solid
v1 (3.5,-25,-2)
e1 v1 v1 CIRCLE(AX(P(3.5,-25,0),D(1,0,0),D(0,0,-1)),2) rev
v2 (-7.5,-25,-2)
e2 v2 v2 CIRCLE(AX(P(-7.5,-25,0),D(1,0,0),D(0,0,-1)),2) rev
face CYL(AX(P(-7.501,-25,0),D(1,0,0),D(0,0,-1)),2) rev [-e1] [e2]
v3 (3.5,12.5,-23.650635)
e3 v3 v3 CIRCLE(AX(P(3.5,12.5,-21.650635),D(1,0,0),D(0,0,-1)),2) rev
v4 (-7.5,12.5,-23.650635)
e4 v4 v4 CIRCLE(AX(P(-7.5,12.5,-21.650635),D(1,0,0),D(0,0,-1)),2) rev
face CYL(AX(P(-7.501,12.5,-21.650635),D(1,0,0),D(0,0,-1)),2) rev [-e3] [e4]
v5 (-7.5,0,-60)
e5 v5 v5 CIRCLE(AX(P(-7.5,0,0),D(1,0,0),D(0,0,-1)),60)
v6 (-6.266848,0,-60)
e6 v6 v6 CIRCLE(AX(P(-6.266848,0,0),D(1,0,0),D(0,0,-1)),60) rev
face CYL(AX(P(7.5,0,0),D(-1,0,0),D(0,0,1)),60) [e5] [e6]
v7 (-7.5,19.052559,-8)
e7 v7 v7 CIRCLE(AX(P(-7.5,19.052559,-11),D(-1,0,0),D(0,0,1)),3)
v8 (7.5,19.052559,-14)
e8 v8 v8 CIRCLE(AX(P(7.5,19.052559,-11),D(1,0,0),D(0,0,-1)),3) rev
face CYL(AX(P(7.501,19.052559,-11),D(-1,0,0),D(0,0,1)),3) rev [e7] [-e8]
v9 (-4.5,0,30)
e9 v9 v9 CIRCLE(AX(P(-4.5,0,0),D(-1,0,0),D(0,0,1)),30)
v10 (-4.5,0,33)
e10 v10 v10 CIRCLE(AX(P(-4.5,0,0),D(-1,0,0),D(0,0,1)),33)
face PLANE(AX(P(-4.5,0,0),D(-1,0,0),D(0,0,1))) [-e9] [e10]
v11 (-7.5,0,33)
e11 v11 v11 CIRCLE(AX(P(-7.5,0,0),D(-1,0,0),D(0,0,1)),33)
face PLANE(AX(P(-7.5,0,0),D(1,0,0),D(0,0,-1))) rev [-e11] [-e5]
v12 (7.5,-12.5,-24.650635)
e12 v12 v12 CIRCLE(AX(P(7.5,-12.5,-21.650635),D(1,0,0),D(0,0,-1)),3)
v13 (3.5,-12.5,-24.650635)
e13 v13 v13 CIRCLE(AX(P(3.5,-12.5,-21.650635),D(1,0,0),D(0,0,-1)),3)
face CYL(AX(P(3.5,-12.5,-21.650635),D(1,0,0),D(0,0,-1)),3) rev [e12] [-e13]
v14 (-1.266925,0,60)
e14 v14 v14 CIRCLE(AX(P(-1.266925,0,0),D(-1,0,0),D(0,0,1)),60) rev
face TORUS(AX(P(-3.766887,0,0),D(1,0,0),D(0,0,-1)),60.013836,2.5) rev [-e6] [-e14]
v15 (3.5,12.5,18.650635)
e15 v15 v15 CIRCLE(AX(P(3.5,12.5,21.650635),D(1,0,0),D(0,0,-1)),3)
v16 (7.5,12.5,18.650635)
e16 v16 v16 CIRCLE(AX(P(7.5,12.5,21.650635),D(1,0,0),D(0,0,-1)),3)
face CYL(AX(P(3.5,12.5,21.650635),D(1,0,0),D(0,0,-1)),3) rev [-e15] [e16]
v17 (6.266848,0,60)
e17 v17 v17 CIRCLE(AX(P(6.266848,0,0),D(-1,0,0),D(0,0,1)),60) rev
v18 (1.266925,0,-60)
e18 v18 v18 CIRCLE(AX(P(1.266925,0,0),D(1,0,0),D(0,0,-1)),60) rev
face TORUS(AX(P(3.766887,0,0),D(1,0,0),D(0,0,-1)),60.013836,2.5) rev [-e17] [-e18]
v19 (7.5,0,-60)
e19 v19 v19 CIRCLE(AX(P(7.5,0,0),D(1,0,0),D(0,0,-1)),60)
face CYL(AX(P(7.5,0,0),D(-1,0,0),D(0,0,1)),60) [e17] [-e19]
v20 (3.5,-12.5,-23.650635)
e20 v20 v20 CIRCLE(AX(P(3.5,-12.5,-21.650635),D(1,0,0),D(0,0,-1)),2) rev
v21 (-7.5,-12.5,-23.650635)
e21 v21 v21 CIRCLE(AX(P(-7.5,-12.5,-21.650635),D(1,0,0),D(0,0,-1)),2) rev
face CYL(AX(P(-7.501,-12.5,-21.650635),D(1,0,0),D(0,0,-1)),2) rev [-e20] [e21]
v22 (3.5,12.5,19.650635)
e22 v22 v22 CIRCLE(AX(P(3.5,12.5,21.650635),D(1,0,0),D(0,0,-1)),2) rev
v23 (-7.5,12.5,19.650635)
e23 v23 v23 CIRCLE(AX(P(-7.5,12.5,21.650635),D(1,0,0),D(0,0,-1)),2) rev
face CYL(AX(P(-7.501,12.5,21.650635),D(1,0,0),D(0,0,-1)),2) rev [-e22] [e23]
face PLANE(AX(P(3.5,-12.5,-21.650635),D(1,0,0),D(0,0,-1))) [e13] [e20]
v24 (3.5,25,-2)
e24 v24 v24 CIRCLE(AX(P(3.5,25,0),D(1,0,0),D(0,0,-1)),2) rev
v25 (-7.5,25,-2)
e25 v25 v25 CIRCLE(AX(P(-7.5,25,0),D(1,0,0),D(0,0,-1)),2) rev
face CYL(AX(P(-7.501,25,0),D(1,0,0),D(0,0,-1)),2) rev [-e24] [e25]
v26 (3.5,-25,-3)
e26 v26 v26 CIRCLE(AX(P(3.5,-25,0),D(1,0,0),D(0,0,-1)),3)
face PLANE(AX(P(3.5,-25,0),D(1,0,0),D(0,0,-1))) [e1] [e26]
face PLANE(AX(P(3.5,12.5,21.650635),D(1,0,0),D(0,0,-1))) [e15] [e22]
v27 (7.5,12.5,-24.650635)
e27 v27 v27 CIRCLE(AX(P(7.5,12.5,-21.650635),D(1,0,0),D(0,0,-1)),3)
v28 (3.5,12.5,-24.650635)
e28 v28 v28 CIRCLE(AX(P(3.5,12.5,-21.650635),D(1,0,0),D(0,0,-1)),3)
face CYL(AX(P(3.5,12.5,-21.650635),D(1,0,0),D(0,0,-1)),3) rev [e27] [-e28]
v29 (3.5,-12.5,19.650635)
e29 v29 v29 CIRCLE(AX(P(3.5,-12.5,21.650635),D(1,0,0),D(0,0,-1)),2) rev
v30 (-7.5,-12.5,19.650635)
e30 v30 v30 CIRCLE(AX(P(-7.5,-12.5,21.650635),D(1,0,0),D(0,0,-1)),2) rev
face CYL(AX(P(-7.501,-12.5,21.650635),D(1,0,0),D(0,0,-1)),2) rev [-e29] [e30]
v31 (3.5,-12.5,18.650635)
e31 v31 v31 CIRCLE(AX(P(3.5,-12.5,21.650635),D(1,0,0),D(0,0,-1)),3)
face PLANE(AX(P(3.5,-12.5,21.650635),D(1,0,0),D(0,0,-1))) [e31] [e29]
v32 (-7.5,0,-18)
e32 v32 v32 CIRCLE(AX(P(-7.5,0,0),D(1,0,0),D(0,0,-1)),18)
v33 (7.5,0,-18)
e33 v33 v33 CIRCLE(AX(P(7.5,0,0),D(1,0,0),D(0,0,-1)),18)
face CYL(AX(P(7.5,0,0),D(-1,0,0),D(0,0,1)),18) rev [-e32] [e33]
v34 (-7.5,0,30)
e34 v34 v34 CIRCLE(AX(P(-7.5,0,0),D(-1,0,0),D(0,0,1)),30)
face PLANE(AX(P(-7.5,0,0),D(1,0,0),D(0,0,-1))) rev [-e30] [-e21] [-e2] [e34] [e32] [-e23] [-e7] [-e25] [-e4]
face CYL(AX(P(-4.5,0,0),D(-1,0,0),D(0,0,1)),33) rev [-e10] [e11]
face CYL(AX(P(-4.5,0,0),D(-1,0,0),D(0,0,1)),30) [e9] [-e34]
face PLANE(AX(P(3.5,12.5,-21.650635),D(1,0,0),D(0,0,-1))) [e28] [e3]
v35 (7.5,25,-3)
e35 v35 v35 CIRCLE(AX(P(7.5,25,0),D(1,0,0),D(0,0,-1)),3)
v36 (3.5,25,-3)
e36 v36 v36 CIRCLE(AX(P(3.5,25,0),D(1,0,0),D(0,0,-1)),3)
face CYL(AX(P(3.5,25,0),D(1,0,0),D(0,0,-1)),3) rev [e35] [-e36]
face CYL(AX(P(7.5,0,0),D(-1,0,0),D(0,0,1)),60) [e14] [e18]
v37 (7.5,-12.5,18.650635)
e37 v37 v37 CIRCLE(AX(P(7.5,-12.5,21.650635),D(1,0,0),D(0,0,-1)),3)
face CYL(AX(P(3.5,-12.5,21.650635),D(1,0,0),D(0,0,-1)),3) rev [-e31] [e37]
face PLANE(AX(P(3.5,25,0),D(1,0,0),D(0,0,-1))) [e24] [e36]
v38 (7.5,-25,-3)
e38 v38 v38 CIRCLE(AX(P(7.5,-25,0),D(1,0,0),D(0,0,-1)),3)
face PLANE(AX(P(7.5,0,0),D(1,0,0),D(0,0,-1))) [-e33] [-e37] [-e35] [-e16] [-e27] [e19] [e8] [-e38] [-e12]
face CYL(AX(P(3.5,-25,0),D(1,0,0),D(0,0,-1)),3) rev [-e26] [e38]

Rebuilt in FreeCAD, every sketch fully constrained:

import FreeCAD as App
import Part
import Sketcher
Q = App.Units.Quantity

doc = App.newDocument("Part")
params = doc.addObject("Spreadsheet::Sheet", "Params")
for row, (alias, value) in enumerate([
    ("sketch1_diameter", "120 mm"),
    ("sketch1_diameter2", "36 mm"),
    ("pad1_length", "15 mm"),
    ("sketch2_diameter", "4 mm"),
    ("sketch3_diameter", "4 mm"),
    ("sketch4_diameter", "4 mm"),
    ("sketch5_diameter", "4 mm"),
    ("sketch6_diameter", "4 mm"),
    ("sketch7_diameter", "4 mm"),
    ("sketch8_diameter", "66 mm"),
    ("sketch8_diameter2", "60 mm"),
    ("pocket7_length", "3 mm"),
    ("sketch9_diameter", "5 mm"),
    ("groove_angle", "360 deg"),
    ("sketch10_diameter", "6 mm"),
    ("pocket8_length", "4 mm"),
    ("sketch11_diameter", "6 mm"),
], start=1):
    params.set(f"A{row}", alias)
    params.set(f"B{row}", "=" + value)
    params.setAlias(f"B{row}", alias)

body = doc.addObject("PartDesign::Body", "Body")

# Sketch on YZ plane
sketch1 = body.newObject("Sketcher::SketchObject", "Sketch")
sketch1.AttachmentSupport = (doc.getObject("YZ_Plane"), [""])
sketch1.MapMode = "FlatFace"
sketch1.addGeometry([
    Part.Circle(App.Vector(0, 0, 0), App.Vector(0, 0, 1), 60),
    Part.Circle(App.Vector(0, 0, 0), App.Vector(0, 0, 1), 18),
], False)
sketch1.addConstraint([
    Sketcher.Constraint("Coincident", 0, 3, -1, 1),
    Sketcher.Constraint("Coincident", 1, 3, -1, 1),
    Sketcher.Constraint("Diameter", 0, Q("120 mm")),
    Sketcher.Constraint("Diameter", 1, Q("36 mm")),
])
sketch1.setExpression("Constraints[2]", "Params.sketch1_diameter")
sketch1.setExpression("Constraints[3]", "Params.sketch1_diameter2")
pad1 = body.newObject("PartDesign::Pad", "Pad")
pad1.Profile = sketch1
pad1.setExpression("Length", "Params.pad1_length")
pad1.Midplane = True

# Sketch on YZ plane
sketch2 = body.newObject("Sketcher::SketchObject", "Sketch001")
sketch2.AttachmentSupport = (doc.getObject("YZ_Plane"), [""])
sketch2.MapMode = "FlatFace"
sketch2.AttachmentOffset = App.Placement(App.Vector(0, 0, 7.5), App.Rotation())
sketch2.addGeometry(Part.Circle(App.Vector(25, 0, 0), App.Vector(0, 0, 1), 2), False)
sketch2.addConstraint([
    Sketcher.Constraint("PointOnObject", 0, 3, -1),
    Sketcher.Constraint("Diameter", 0, Q("4 mm")),
    Sketcher.Constraint("DistanceX", -1, 1, 0, 3, Q("25 mm")),
])
sketch2.setExpression("Constraints[1]", "Params.sketch2_diameter")
pocket1 = body.newObject("PartDesign::Pocket", "Pocket")
pocket1.Profile = sketch2
pocket1.Type = "UpToFirst"

# Sketch on YZ plane
sketch3 = body.newObject("Sketcher::SketchObject", "Sketch002")
sketch3.AttachmentSupport = (doc.getObject("YZ_Plane"), [""])
sketch3.MapMode = "FlatFace"
sketch3.AttachmentOffset = App.Placement(App.Vector(0, 0, 7.5), App.Rotation())
sketch3.addGeometry(Part.Circle(App.Vector(12.5, -21.7, 0), App.Vector(0, 0, 1), 2), False)
sketch3.addConstraint([
    Sketcher.Constraint("Diameter", 0, Q("4 mm")),
    Sketcher.Constraint("DistanceX", -1, 1, 0, 3, Q("12.5 mm")),
    Sketcher.Constraint("DistanceY", 0, 3, -1, 1, Q("21.650635 mm")),
])
sketch3.setExpression("Constraints[0]", "Params.sketch3_diameter")
pocket2 = body.newObject("PartDesign::Pocket", "Pocket001")
pocket2.Profile = sketch3
pocket2.Type = "UpToFirst"

# Sketch on YZ plane
sketch4 = body.newObject("Sketcher::SketchObject", "Sketch003")
sketch4.AttachmentSupport = (doc.getObject("YZ_Plane"), [""])
sketch4.MapMode = "FlatFace"
sketch4.AttachmentOffset = App.Placement(App.Vector(0, 0, 7.5), App.Rotation())
sketch4.addGeometry(Part.Circle(App.Vector(-12.5, -21.7, 0), App.Vector(0, 0, 1), 2), False)
sketch4.addConstraint([
    Sketcher.Constraint("Diameter", 0, Q("4 mm")),
    Sketcher.Constraint("DistanceX", 0, 3, -1, 1, Q("12.5 mm")),
    Sketcher.Constraint("DistanceY", 0, 3, -1, 1, Q("21.650635 mm")),
])
sketch4.setExpression("Constraints[0]", "Params.sketch4_diameter")
pocket3 = body.newObject("PartDesign::Pocket", "Pocket002")
pocket3.Profile = sketch4
pocket3.Type = "UpToFirst"

# Sketch on YZ plane
sketch5 = body.newObject("Sketcher::SketchObject", "Sketch004")
sketch5.AttachmentSupport = (doc.getObject("YZ_Plane"), [""])
sketch5.MapMode = "FlatFace"
sketch5.AttachmentOffset = App.Placement(App.Vector(0, 0, 7.5), App.Rotation())
sketch5.addGeometry(Part.Circle(App.Vector(-25, 0, 0), App.Vector(0, 0, 1), 2), False)
sketch5.addConstraint([
    Sketcher.Constraint("PointOnObject", 0, 3, -1),
    Sketcher.Constraint("Diameter", 0, Q("4 mm")),
    Sketcher.Constraint("DistanceX", 0, 3, -1, 1, Q("25 mm")),
])
sketch5.setExpression("Constraints[1]", "Params.sketch5_diameter")
pocket4 = body.newObject("PartDesign::Pocket", "Pocket003")
pocket4.Profile = sketch5
pocket4.Type = "UpToFirst"

# Sketch on YZ plane
sketch6 = body.newObject("Sketcher::SketchObject", "Sketch005")
sketch6.AttachmentSupport = (doc.getObject("YZ_Plane"), [""])
sketch6.MapMode = "FlatFace"
sketch6.AttachmentOffset = App.Placement(App.Vector(0, 0, 7.5), App.Rotation())
sketch6.addGeometry(Part.Circle(App.Vector(-12.5, 21.7, 0), App.Vector(0, 0, 1), 2), False)
sketch6.addConstraint([
    Sketcher.Constraint("Diameter", 0, Q("4 mm")),
    Sketcher.Constraint("DistanceX", 0, 3, -1, 1, Q("12.5 mm")),
    Sketcher.Constraint("DistanceY", -1, 1, 0, 3, Q("21.650635 mm")),
])
sketch6.setExpression("Constraints[0]", "Params.sketch6_diameter")
pocket5 = body.newObject("PartDesign::Pocket", "Pocket004")
pocket5.Profile = sketch6
pocket5.Type = "UpToFirst"

# Sketch on YZ plane
sketch7 = body.newObject("Sketcher::SketchObject", "Sketch006")
sketch7.AttachmentSupport = (doc.getObject("YZ_Plane"), [""])
sketch7.MapMode = "FlatFace"
sketch7.AttachmentOffset = App.Placement(App.Vector(0, 0, 7.5), App.Rotation())
sketch7.addGeometry(Part.Circle(App.Vector(12.5, 21.7, 0), App.Vector(0, 0, 1), 2), False)
sketch7.addConstraint([
    Sketcher.Constraint("Diameter", 0, Q("4 mm")),
    Sketcher.Constraint("DistanceX", -1, 1, 0, 3, Q("12.5 mm")),
    Sketcher.Constraint("DistanceY", -1, 1, 0, 3, Q("21.650635 mm")),
])
sketch7.setExpression("Constraints[0]", "Params.sketch7_diameter")
pocket6 = body.newObject("PartDesign::Pocket", "Pocket005")
pocket6.Profile = sketch7
pocket6.Type = "UpToFirst"

# Sketch on YZ plane
sketch8 = body.newObject("Sketcher::SketchObject", "Sketch007")
sketch8.AttachmentSupport = (doc.getObject("YZ_Plane"), [""])
sketch8.MapMode = "FlatFace"
sketch8.AttachmentOffset = App.Placement(App.Vector(0, 0, -7.5), App.Rotation())
sketch8.addGeometry([
    Part.Circle(App.Vector(0, 0, 0), App.Vector(0, 0, 1), 33),
    Part.Circle(App.Vector(0, 0, 0), App.Vector(0, 0, 1), 30),
], False)
sketch8.addConstraint([
    Sketcher.Constraint("Coincident", 0, 3, -1, 1),
    Sketcher.Constraint("Coincident", 1, 3, -1, 1),
    Sketcher.Constraint("Diameter", 0, Q("66 mm")),
    Sketcher.Constraint("Diameter", 1, Q("60 mm")),
])
sketch8.setExpression("Constraints[2]", "Params.sketch8_diameter")
sketch8.setExpression("Constraints[3]", "Params.sketch8_diameter2")
pocket7 = body.newObject("PartDesign::Pocket", "Pocket006")
pocket7.Profile = sketch8
pocket7.setExpression("Length", "Params.pocket7_length")
pocket7.Reversed = True

# Sketch on XY plane
sketch9 = body.newObject("Sketcher::SketchObject", "Sketch008")
sketch9.AttachmentSupport = (doc.getObject("XY_Plane"), [""])
sketch9.MapMode = "FlatFace"
sketch9.addGeometry([
    Part.Circle(App.Vector(3.8, 60, 0), App.Vector(0, 0, 1), 2.5),
    Part.Circle(App.Vector(-3.8, 60, 0), App.Vector(0, 0, 1), 2.5),
], False)
sketch9.addConstraint([
    Sketcher.Constraint("Equal", 0, 1),
    Sketcher.Constraint("Symmetric", 0, 3, 1, 3, -2),
    Sketcher.Constraint("Diameter", 0, Q("5 mm")),
    Sketcher.Constraint("DistanceX", -1, 1, 0, 3, Q("3.766887 mm")),
    Sketcher.Constraint("DistanceY", -1, 1, 0, 3, Q("60.013836 mm")),
])
sketch9.setExpression("Constraints[2]", "Params.sketch9_diameter")
groove = body.newObject("PartDesign::Groove", "Groove")
groove.Profile = sketch9
groove.ReferenceAxis = (sketch9, ["H_Axis"])
groove.setExpression("Angle", "Params.groove_angle")

# Sketch on YZ plane
sketch10 = body.newObject("Sketcher::SketchObject", "Sketch009")
sketch10.AttachmentSupport = (doc.getObject("YZ_Plane"), [""])
sketch10.MapMode = "FlatFace"
sketch10.AttachmentOffset = App.Placement(App.Vector(0, 0, 7.5), App.Rotation())
sketch10.addGeometry([
    Part.Circle(App.Vector(25, 0, 0), App.Vector(0, 0, 1), 3),  # 0
    Part.Circle(App.Vector(12.5, -21.7, 0), App.Vector(0, 0, 1), 3),  # 1
    Part.Circle(App.Vector(-12.5, -21.7, 0), App.Vector(0, 0, 1), 3),  # 2
    Part.Circle(App.Vector(-25, 0, 0), App.Vector(0, 0, 1), 3),  # 3
    Part.Circle(App.Vector(-12.5, 21.7, 0), App.Vector(0, 0, 1), 3),  # 4
    Part.Circle(App.Vector(12.5, 21.7, 0), App.Vector(0, 0, 1), 3),  # 5
], False)
sketch10.addConstraint([
    Sketcher.Constraint("Equal", 0, 1),
    Sketcher.Constraint("Equal", 1, 2),
    Sketcher.Constraint("Equal", 2, 3),
    Sketcher.Constraint("Equal", 3, 4),
    Sketcher.Constraint("Equal", 4, 5),
    Sketcher.Constraint("Symmetric", 0, 3, 3, 3, -1, 1),
    Sketcher.Constraint("Symmetric", 1, 3, 4, 3, -1, 1),
    Sketcher.Constraint("Symmetric", 2, 3, 5, 3, -1, 1),
    Sketcher.Constraint("Symmetric", 1, 3, 2, 3, -2),
    Sketcher.Constraint("PointOnObject", 0, 3, -1),
    Sketcher.Constraint("Diameter", 0, Q("6 mm")),
    Sketcher.Constraint("DistanceX", -1, 1, 0, 3, Q("25 mm")),
    Sketcher.Constraint("DistanceX", 2, 3, 1, 3, Q("25 mm")),
    Sketcher.Constraint("DistanceY", 2, 3, 4, 3, Q("43.30127 mm")),
])
sketch10.setExpression("Constraints[10]", "Params.sketch10_diameter")
pocket8 = body.newObject("PartDesign::Pocket", "Pocket007")
pocket8.Profile = sketch10
pocket8.setExpression("Length", "Params.pocket8_length")

# Sketch on YZ plane
sketch11 = body.newObject("Sketcher::SketchObject", "Sketch010")
sketch11.AttachmentSupport = (doc.getObject("YZ_Plane"), [""])
sketch11.MapMode = "FlatFace"
sketch11.AttachmentOffset = App.Placement(App.Vector(0, 0, -7.5), App.Rotation())
sketch11.addGeometry(Part.Circle(App.Vector(19.1, -11, 0), App.Vector(0, 0, 1), 3), False)
sketch11.addConstraint([
    Sketcher.Constraint("Diameter", 0, Q("6 mm")),
    Sketcher.Constraint("DistanceY", 0, 3, -1, 1, Q("11 mm")),
    Sketcher.Constraint("DistanceX", -1, 1, 0, 3, Q("19.052559 mm")),
])
sketch11.setExpression("Constraints[0]", "Params.sketch11_diameter")
pocket9 = body.newObject("PartDesign::Pocket", "Pocket008")
pocket9.Profile = sketch11
pocket9.Type = "UpToFirst"
pocket9.Reversed = True

doc.recompute()
